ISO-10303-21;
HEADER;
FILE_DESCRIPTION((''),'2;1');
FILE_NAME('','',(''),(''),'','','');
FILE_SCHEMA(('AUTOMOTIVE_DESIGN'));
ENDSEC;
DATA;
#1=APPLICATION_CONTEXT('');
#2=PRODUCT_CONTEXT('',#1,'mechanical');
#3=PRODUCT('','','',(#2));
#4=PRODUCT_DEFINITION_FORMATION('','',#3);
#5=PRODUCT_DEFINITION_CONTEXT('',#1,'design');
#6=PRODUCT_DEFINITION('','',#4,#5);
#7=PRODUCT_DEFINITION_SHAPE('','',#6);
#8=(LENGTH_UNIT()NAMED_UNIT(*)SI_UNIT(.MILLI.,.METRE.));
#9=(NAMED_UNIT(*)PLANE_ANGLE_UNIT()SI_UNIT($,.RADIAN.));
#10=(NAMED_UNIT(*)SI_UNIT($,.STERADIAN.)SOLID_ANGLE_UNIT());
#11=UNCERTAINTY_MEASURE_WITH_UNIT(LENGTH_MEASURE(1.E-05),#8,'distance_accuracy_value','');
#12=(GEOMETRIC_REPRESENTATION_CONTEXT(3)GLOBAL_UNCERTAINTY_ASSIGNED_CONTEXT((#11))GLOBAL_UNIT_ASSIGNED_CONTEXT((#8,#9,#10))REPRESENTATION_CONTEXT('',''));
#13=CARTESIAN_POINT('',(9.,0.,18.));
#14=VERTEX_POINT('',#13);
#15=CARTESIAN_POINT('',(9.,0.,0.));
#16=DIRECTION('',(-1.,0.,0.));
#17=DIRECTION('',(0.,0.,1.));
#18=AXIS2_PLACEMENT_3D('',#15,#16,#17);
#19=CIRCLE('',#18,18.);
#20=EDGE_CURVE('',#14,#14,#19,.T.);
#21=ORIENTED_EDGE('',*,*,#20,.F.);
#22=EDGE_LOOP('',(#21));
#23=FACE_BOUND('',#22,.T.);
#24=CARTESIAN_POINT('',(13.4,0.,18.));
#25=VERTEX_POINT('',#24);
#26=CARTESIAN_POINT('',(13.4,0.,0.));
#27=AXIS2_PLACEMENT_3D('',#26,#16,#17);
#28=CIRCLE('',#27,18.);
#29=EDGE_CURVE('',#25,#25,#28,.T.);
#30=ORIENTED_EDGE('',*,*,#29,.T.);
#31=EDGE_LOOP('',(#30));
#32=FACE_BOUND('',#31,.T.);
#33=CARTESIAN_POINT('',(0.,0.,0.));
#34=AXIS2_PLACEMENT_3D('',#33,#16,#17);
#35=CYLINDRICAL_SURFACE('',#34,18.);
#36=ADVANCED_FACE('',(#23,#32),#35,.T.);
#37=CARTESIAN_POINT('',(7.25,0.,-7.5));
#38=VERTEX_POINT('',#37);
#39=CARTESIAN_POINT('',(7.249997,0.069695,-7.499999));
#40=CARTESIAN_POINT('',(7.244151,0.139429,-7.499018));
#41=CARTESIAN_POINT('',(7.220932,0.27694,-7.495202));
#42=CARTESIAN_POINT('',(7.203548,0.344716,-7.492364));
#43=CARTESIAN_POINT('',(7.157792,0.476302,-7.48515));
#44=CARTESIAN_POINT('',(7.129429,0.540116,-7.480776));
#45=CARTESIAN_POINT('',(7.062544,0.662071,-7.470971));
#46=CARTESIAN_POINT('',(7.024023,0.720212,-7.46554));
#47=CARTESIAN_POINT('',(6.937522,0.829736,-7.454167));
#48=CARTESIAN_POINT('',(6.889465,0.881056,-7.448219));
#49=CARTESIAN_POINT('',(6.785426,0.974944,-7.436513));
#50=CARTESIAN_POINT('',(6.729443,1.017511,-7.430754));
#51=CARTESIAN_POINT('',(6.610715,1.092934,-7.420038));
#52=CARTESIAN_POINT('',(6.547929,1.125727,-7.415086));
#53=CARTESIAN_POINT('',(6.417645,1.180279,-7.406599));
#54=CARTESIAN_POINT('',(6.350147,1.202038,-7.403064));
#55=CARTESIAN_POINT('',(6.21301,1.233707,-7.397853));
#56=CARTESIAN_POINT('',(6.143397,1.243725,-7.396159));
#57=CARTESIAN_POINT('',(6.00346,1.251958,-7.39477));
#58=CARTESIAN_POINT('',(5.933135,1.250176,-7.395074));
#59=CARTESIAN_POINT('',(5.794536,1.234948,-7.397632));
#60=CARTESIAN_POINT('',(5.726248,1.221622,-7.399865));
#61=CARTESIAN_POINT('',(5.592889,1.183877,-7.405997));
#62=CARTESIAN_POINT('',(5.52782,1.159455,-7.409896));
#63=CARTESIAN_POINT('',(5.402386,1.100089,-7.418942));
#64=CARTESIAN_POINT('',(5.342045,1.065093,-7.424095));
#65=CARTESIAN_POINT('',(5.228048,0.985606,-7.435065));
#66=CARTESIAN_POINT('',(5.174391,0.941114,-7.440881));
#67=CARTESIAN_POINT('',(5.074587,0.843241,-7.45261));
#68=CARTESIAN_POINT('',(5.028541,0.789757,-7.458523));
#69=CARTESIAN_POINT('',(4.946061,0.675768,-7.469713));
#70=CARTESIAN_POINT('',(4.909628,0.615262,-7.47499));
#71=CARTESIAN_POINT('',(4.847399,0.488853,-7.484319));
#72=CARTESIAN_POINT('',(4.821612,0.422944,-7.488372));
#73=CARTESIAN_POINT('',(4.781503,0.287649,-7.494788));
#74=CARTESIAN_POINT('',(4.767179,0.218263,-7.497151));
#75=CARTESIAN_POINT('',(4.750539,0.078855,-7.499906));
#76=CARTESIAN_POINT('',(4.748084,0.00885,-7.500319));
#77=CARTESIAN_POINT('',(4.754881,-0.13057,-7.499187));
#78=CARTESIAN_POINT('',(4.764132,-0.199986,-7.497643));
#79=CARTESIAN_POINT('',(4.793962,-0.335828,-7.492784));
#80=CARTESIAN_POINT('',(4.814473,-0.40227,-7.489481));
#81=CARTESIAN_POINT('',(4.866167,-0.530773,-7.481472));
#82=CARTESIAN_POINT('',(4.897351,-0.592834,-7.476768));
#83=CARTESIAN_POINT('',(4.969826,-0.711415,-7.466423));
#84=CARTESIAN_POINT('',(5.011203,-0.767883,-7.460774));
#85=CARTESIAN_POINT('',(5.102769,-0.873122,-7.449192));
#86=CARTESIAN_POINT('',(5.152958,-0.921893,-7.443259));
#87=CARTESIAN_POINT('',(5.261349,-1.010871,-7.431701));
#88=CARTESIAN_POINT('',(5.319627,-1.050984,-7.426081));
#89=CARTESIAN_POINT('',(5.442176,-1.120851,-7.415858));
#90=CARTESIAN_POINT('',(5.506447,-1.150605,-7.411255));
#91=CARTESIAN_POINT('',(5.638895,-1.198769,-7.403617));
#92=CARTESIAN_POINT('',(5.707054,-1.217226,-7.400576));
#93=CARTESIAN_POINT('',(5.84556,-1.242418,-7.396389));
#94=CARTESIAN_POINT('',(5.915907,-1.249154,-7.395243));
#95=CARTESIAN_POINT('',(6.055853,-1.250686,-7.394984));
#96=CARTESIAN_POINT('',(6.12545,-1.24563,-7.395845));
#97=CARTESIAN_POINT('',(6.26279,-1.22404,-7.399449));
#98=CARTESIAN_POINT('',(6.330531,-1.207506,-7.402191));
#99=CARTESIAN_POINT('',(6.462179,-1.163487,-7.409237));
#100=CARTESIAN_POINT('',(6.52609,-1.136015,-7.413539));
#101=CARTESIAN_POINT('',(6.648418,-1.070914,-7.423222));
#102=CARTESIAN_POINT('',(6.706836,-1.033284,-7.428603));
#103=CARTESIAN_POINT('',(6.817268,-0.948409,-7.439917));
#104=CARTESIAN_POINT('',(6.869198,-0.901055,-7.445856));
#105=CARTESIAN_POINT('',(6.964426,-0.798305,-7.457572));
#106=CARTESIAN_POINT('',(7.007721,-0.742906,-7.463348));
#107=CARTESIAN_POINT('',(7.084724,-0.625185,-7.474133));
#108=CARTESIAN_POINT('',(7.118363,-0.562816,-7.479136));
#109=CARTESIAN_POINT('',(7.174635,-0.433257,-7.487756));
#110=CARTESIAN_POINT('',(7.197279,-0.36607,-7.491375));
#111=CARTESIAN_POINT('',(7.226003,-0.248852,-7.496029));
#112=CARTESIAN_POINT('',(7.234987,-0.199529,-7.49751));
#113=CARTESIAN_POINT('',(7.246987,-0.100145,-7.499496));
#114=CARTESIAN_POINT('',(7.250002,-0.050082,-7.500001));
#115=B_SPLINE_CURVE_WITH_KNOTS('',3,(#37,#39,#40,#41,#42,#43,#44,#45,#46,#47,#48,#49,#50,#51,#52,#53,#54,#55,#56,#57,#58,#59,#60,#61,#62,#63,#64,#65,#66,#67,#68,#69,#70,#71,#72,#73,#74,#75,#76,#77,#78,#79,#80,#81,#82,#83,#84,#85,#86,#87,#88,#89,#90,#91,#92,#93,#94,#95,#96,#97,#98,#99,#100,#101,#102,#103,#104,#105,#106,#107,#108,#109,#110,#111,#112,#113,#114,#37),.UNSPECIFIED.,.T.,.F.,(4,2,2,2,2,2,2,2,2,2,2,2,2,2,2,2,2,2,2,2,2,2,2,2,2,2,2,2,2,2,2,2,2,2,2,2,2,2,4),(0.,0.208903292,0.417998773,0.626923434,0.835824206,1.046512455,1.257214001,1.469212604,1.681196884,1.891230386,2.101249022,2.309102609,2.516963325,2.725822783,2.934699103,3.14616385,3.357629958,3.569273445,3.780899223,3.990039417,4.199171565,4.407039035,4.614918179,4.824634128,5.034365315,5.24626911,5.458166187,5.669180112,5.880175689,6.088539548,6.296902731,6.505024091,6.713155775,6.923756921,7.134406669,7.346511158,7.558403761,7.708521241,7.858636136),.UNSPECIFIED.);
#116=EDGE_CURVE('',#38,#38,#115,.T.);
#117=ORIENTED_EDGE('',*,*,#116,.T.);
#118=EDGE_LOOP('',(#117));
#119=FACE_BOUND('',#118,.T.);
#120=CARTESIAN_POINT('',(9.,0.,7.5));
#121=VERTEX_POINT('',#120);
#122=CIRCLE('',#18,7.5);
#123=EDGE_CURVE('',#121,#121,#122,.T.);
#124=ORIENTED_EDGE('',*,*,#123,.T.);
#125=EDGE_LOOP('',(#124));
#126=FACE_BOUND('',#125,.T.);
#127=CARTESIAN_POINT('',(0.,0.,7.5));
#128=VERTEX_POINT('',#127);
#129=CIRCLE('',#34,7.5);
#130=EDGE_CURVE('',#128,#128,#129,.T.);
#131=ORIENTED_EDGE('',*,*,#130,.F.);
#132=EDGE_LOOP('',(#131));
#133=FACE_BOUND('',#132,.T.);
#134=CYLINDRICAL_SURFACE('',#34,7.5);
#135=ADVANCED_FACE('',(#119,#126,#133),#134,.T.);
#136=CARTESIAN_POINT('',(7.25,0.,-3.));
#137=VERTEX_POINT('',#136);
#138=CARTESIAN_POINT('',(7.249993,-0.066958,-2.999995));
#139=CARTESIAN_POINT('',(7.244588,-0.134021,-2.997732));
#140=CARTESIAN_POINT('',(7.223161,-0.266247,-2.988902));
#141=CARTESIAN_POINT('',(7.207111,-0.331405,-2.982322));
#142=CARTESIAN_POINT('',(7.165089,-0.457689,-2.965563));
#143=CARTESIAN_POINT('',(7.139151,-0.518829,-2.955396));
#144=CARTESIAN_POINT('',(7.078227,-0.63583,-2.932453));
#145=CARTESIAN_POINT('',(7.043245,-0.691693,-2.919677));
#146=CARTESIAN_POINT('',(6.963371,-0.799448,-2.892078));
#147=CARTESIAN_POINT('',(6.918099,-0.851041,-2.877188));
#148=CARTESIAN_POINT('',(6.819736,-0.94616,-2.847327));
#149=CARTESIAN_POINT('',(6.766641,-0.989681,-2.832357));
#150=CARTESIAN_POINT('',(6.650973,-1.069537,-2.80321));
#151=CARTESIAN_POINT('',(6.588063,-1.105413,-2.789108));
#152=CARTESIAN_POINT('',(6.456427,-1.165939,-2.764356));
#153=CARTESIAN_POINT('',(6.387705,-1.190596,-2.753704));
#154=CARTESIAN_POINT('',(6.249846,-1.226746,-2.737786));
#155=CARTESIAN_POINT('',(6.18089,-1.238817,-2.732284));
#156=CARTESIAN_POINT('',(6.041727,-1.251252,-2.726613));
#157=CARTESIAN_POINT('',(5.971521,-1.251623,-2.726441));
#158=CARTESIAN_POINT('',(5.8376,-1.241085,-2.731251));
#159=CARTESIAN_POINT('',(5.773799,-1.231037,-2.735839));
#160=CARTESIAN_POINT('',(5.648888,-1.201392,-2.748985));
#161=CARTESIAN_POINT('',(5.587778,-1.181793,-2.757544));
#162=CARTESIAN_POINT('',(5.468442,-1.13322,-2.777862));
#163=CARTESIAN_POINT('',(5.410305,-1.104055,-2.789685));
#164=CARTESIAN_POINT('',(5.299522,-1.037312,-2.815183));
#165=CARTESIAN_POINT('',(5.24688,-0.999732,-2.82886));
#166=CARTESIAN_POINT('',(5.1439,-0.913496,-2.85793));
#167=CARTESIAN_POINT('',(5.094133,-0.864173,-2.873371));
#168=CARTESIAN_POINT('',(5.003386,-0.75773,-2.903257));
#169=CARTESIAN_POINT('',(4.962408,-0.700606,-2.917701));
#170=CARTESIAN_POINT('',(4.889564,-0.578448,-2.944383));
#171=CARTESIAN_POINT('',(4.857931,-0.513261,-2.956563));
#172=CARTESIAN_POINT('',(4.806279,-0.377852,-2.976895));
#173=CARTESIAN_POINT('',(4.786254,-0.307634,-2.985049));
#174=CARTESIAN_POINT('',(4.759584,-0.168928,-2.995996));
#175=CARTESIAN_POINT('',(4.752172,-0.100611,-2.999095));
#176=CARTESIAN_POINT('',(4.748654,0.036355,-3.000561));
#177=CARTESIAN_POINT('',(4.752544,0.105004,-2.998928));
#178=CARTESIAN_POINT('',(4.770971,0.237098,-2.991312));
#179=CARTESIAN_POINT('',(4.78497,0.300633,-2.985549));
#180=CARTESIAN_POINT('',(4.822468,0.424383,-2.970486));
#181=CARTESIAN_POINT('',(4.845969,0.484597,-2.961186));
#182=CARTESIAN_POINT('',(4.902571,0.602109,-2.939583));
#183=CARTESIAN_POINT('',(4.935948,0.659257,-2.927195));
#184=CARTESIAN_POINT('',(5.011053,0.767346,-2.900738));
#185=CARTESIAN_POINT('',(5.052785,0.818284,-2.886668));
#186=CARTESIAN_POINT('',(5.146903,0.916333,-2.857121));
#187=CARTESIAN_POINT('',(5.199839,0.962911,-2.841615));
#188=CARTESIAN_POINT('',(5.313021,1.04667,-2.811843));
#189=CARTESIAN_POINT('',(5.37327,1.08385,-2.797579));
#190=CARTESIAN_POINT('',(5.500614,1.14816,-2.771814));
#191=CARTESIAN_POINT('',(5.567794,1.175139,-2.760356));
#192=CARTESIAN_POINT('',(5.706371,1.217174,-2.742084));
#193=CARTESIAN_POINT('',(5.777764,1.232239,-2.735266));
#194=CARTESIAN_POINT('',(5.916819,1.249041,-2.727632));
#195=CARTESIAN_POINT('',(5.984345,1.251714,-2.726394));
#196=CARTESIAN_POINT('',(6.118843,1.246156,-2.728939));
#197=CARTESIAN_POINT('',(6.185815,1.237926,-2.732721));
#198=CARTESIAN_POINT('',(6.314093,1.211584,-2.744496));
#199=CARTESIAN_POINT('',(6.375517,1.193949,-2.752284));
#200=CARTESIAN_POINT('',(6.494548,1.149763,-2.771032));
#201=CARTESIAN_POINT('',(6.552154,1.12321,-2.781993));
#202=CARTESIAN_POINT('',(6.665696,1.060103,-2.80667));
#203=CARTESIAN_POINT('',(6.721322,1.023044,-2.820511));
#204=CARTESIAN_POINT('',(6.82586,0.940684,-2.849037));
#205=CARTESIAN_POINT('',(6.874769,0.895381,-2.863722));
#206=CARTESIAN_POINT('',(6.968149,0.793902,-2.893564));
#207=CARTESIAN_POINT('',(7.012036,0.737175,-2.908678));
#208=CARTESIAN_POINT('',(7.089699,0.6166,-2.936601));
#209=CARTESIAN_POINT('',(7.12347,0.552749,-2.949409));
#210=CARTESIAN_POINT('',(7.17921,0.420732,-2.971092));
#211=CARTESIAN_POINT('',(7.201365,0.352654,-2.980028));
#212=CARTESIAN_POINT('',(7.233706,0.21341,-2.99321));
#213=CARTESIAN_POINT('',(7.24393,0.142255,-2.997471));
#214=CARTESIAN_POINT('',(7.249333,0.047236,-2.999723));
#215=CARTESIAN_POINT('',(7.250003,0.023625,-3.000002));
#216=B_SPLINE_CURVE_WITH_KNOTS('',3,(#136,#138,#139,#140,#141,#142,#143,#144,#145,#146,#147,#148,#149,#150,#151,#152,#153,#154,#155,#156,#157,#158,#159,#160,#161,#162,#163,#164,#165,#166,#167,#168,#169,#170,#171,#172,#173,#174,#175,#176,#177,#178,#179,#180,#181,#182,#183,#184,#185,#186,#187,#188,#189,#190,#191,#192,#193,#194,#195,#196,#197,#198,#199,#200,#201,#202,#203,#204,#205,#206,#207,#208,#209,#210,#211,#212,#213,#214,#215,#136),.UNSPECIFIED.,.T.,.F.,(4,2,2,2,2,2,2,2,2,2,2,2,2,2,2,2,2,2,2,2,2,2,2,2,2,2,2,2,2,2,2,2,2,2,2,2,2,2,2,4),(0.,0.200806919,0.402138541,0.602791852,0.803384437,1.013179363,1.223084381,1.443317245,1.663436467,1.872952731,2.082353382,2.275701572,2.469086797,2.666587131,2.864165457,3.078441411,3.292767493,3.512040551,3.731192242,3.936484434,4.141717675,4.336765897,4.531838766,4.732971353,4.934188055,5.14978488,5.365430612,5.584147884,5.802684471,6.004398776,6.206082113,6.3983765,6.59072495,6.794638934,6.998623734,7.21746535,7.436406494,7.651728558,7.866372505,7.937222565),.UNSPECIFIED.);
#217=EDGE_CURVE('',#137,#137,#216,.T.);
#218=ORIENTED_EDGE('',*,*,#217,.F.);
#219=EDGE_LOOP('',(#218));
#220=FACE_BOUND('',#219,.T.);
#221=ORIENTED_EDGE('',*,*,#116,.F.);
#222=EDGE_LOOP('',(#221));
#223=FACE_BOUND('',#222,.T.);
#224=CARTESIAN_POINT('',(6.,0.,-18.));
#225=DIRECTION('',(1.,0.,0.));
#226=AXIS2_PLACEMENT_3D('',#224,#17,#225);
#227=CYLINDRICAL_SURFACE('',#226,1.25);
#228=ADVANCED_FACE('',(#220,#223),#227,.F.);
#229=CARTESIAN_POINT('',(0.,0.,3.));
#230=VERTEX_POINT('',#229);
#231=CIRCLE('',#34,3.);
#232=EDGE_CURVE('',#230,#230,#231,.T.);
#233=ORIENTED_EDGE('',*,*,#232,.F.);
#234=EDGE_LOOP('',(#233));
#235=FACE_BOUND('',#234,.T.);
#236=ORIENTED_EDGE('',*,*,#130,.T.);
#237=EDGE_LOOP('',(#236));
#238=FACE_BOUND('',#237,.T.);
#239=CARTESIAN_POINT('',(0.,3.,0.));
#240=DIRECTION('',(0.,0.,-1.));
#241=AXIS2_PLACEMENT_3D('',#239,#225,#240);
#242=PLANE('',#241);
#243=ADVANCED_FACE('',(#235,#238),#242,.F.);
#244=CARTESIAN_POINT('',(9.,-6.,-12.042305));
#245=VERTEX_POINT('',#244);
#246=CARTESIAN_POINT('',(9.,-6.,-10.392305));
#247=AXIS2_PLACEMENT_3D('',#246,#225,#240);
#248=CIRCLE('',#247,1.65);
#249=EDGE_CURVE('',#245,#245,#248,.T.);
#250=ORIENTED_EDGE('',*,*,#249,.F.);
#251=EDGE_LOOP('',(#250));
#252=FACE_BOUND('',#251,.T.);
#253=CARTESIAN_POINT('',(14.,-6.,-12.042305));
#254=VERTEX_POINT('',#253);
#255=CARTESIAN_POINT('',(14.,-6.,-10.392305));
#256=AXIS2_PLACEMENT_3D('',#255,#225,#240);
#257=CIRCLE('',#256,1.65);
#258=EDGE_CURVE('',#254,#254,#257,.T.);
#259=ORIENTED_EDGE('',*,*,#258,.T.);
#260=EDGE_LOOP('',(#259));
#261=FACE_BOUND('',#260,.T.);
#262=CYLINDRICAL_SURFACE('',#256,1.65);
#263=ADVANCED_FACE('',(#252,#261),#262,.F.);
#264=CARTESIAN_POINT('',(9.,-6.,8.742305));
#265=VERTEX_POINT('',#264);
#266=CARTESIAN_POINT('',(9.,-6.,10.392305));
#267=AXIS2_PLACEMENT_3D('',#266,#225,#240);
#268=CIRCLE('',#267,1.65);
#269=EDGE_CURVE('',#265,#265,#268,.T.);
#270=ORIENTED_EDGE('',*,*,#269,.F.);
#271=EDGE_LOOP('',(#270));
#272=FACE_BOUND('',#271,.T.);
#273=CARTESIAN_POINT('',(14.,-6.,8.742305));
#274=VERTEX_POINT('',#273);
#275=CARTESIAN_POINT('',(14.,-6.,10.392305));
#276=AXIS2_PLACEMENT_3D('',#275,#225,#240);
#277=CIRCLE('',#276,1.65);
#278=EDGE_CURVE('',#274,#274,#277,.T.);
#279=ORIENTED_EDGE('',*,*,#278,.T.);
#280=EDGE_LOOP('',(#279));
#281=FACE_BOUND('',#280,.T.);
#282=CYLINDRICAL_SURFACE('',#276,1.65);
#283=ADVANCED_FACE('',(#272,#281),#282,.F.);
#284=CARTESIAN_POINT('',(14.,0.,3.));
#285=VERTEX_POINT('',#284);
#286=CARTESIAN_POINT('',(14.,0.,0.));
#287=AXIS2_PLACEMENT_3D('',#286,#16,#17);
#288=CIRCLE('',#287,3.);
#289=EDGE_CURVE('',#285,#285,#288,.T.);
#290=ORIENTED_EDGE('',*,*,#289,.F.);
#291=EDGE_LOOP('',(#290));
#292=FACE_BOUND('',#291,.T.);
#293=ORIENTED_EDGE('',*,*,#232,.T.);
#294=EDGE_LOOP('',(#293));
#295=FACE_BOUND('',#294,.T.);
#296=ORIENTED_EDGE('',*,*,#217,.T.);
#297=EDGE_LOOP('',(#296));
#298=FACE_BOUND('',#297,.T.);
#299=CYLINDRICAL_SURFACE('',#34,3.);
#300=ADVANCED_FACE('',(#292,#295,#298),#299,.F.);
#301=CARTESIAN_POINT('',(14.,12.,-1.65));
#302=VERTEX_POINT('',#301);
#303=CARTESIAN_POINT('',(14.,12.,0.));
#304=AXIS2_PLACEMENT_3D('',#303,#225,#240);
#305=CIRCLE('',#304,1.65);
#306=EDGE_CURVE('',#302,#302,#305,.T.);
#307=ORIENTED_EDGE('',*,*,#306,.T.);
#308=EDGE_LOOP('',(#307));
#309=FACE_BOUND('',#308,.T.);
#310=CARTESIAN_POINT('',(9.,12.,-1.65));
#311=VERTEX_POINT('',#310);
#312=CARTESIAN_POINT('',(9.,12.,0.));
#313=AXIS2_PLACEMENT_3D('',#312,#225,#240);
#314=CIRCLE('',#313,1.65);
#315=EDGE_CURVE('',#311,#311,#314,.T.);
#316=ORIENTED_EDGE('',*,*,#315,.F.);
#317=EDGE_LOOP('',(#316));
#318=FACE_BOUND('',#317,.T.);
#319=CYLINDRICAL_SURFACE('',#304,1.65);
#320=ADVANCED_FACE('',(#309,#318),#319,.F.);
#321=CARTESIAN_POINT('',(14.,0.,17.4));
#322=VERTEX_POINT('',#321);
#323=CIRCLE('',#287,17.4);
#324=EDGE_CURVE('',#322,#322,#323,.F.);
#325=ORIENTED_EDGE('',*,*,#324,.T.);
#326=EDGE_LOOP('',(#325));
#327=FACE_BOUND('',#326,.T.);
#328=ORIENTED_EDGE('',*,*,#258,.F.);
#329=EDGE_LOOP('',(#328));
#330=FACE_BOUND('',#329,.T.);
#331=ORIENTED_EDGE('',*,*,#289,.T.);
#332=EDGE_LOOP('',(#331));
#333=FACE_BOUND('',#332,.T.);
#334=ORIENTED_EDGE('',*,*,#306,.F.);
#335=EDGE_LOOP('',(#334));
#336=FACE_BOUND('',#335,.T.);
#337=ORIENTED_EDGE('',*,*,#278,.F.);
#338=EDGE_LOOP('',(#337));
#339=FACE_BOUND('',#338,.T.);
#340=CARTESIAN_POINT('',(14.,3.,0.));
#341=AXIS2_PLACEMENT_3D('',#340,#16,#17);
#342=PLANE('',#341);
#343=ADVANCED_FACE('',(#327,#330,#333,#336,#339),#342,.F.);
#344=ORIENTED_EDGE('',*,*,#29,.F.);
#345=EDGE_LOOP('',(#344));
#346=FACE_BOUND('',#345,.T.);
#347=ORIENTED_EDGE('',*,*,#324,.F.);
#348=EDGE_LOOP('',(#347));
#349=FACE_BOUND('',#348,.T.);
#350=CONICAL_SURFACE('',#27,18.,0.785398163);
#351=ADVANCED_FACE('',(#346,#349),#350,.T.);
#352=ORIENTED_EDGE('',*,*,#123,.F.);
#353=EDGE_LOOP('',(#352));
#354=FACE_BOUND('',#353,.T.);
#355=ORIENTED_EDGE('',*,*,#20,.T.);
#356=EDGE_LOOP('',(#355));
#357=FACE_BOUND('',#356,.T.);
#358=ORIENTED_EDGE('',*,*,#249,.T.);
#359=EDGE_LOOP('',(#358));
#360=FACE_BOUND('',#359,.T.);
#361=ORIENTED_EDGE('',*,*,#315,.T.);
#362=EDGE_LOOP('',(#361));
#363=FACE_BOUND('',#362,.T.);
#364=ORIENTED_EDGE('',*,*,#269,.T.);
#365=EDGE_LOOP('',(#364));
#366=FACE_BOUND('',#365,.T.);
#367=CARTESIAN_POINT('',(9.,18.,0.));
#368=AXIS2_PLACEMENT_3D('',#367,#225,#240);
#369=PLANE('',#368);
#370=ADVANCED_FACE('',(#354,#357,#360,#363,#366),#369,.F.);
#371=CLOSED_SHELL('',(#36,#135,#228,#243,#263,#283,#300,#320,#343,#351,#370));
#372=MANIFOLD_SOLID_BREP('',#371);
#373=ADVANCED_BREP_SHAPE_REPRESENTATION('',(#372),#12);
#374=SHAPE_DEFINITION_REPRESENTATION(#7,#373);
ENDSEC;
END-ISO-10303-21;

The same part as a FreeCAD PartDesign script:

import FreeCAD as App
import Part
import Sketcher
from FreeCAD import Vector
Q = App.Units.Quantity


def edges_at(feature, points):
    """Names of the edges that pass closest to the given points."""
    edges = feature.Shape.Edges
    near = lambda p: min(range(len(edges)), key=lambda i: edges[i].distToShape(Part.Vertex(*p))[0])
    return sorted({f"Edge{near(p) + 1}" for p in points})


def add_polygon(sketch, points):
    """Adds a closed chain of lines whose ends are joined by coincident constraints."""
    first, n = sketch.GeometryCount, len(points)
    for a, b in zip(points, points[1:] + points[:1]):
        sketch.addGeometry(Part.LineSegment(App.Vector(*a, 0), App.Vector(*b, 0)), False)
    for i in range(n):
        sketch.addConstraint(Sketcher.Constraint("Coincident", first + i, 2, first + (i + 1) % n, 1))

doc = App.newDocument("Part")
params = doc.addObject("Spreadsheet::Sheet", "Params")
for row, (alias, value) in enumerate([
    ("sketch1_width", "14 mm"),
    ("sketch1_width2", "5 mm"),
    ("sketch1_height", "15 mm"),
    ("sketch1_height2", "10.5 mm"),
    ("revolution_angle", "360 deg"),
    ("sketch2_diameter", "2.5 mm"),
    ("sketch3_diameter", "3.3 mm"),
    ("hole_diameter", "3.3 mm"),
    ("chamfer_size", "0.6 mm"),
], start=1):
    params.set(f"A{row}", alias)
    params.set(f"B{row}", "=" + value)
    params.setAlias(f"B{row}", alias)

body = doc.addObject("PartDesign::Body", "Body")

# Sketch on XY plane
sketch1 = doc.addObject("Sketcher::SketchObject", "Sketch")
body.addObject(sketch1)
sketch1.AttachmentSupport = (doc.XY_Plane, [""])
sketch1.MapMode = "FlatFace"
add_polygon(sketch1, [(0, 3), (14, 3), (14, 18), (9, 18), (9, 7.5), (0, 7.5)])  # lines 0-5
sketch1.addConstraint(Sketcher.Constraint("Horizontal", 0))
sketch1.addConstraint(Sketcher.Constraint("Vertical", 1))
sketch1.addConstraint(Sketcher.Constraint("Horizontal", 2))
sketch1.addConstraint(Sketcher.Constraint("Vertical", 3))
sketch1.addConstraint(Sketcher.Constraint("Horizontal", 4))
sketch1.addConstraint(Sketcher.Constraint("Vertical", 5))
sketch1.addConstraint(Sketcher.Constraint("PointOnObject", 4, 2, -2))
sketch1.addConstraint(Sketcher.Constraint("DistanceX", 0, 1, 0, 2, Q("14 mm")))
sketch1.addConstraint(Sketcher.Constraint("DistanceX", 2, 2, 2, 1, Q("5 mm")))
sketch1.addConstraint(Sketcher.Constraint("DistanceY", 1, 1, 1, 2, Q("15 mm")))
sketch1.addConstraint(Sketcher.Constraint("DistanceY", 3, 2, 3, 1, Q("10.5 mm")))
sketch1.addConstraint(Sketcher.Constraint("DistanceY", -1, 1, 0, 2, Q("3 mm")))
sketch1.setExpression("Constraints[13]", "Params.sketch1_width")
sketch1.setExpression("Constraints[14]", "Params.sketch1_width2")
sketch1.setExpression("Constraints[15]", "Params.sketch1_height")
sketch1.setExpression("Constraints[16]", "Params.sketch1_height2")
revolution = doc.addObject("PartDesign::Revolution", "Revolution")
body.addObject(revolution)
revolution.Profile = sketch1
revolution.ReferenceAxis = (sketch1, ["H_Axis"])
revolution.setExpression("Angle", "Params.revolution_angle")

# Sketch on XY plane
sketch2 = doc.addObject("Sketcher::SketchObject", "Sketch001")
body.addObject(sketch2)
sketch2.AttachmentSupport = (doc.XY_Plane, [""])
sketch2.MapMode = "FlatFace"
sketch2.addGeometry(Part.Circle(Vector(6, 0, 0), Vector(0, 0, 1), 1.2), False)
sketch2.addConstraint(Sketcher.Constraint("PointOnObject", 0, 3, -1))
sketch2.addConstraint(Sketcher.Constraint("Diameter", 0, Q("2.5 mm")))
sketch2.addConstraint(Sketcher.Constraint("DistanceX", -1, 1, 0, 3, Q("6 mm")))
sketch2.setExpression("Constraints[1]", "Params.sketch2_diameter")
pocket1 = doc.addObject("PartDesign::Pocket", "Pocket")
body.addObject(pocket1)
pocket1.Profile = sketch2
pocket1.Type = "ThroughAll"

# Sketch on YZ plane
sketch3 = doc.addObject("Sketcher::SketchObject", "Sketch002")
body.addObject(sketch3)
sketch3.AttachmentSupport = (doc.YZ_Plane, [""])
sketch3.MapMode = "FlatFace"
sketch3.AttachmentOffset = App.Placement(Vector(0, 0, 14), App.Rotation())
sketch3.addGeometry(Part.Circle(Vector(12, 0, 0), Vector(0, 0, 1), 1.6), False)
sketch3.addConstraint(Sketcher.Constraint("PointOnObject", 0, 3, -1))
sketch3.addConstraint(Sketcher.Constraint("Diameter", 0, Q("3.3 mm")))
sketch3.addConstraint(Sketcher.Constraint("DistanceX", -1, 1, 0, 3, Q("12 mm")))
sketch3.setExpression("Constraints[1]", "Params.sketch3_diameter")
doc.recompute()
hole = doc.addObject("PartDesign::Hole", "Hole")
body.addObject(hole)
hole.Profile = sketch3
hole.ThreadType = "None"
hole.setExpression("Diameter", "Params.hole_diameter")
hole.DepthType = "ThroughAll"
doc.recompute()

polarpattern = doc.addObject("PartDesign::PolarPattern", "PolarPattern")
body.addObject(polarpattern)
polarpattern.Originals = [hole]
polarpattern.Axis = (doc.X_Axis, [""])
polarpattern.Angle = 360
polarpattern.Occurrences = 3
body.Tip = polarpattern
doc.recompute()

chamfer = doc.addObject("PartDesign::Chamfer", "Chamfer")
body.addObject(chamfer)
chamfer.Base = (polarpattern, edges_at(polarpattern, [(14, 0, -18)]))
chamfer.setExpression("Size", "Params.chamfer_size")

doc.recompute()
